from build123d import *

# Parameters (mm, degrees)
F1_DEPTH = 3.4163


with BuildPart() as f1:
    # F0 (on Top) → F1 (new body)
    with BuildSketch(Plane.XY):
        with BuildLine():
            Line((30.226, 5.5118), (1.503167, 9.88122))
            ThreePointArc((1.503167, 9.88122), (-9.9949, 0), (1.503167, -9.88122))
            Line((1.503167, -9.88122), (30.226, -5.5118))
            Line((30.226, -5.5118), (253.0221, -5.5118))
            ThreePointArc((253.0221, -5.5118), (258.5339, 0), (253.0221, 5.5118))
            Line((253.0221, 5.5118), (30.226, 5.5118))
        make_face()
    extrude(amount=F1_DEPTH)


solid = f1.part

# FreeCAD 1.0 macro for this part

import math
import FreeCAD as App
import Part
import Sketcher
Q = App.Units.Quantity

doc = App.newDocument("Part")
body = doc.addObject("PartDesign::Body", "Body")

sketch1 = body.newObject("Sketcher::SketchObject", "Sketch")
sketch1.AttachmentSupport = (doc.getObject("XY_Plane"), [""])
sketch1.MapMode = "FlatFace"
sketch1.addGeometry([
    Part.LineSegment(App.Vector(30, 6, 0), App.Vector(2, 10, 0)),
    Part.ArcOfCircle(Part.Circle(App.Vector(0, 0, 0), App.Vector(0, 0, 1), 10), math.radians(81), math.radians(279)),
    Part.LineSegment(App.Vector(2, -10, 0), App.Vector(30, -6, 0)),
    Part.LineSegment(App.Vector(30, -6, 0), App.Vector(253, -6, 0)),
    Part.ArcOfCircle(Part.Circle(App.Vector(253, 0, 0), App.Vector(0, 0, 1), 6), math.radians(-90), math.radians(90)),
    Part.LineSegment(App.Vector(253, 6, 0), App.Vector(30, 6, 0)),
], False)
sketch1.addConstraint([
    Sketcher.Constraint("Tangent", 0, 2, 1, 1),
    Sketcher.Constraint("Tangent", 1, 2, 2, 1),
    Sketcher.Constraint("Coincident", 2, 2, 3, 1),
    Sketcher.Constraint("Tangent", 3, 2, 4, 1),
    Sketcher.Constraint("Tangent", 4, 2, 5, 1),
    Sketcher.Constraint("Coincident", 5, 2, 0, 1),
    Sketcher.Constraint("Horizontal", 3),
    Sketcher.Constraint("Horizontal", 5),
    Sketcher.Constraint("Coincident", 1, 3, -1, 1),
    Sketcher.Constraint("Symmetric", 2, 2, 5, 2, -1),
    Sketcher.Constraint("Radius", 4, Q("0.217 in")),
    Sketcher.Constraint("Radius", 1, Q("0.3935 in")),
    Sketcher.Constraint("DistanceX", -1, 1, 2, 2, Q("1.19 in")),
    Sketcher.Constraint("DistanceX", 3, 1, 3, 2, Q("8.7715 in")),
])
pad1 = body.newObject("PartDesign::Pad", "Pad")
pad1.Profile = sketch1
pad1.Length = Q("0.1345 in")

doc.recompute()
